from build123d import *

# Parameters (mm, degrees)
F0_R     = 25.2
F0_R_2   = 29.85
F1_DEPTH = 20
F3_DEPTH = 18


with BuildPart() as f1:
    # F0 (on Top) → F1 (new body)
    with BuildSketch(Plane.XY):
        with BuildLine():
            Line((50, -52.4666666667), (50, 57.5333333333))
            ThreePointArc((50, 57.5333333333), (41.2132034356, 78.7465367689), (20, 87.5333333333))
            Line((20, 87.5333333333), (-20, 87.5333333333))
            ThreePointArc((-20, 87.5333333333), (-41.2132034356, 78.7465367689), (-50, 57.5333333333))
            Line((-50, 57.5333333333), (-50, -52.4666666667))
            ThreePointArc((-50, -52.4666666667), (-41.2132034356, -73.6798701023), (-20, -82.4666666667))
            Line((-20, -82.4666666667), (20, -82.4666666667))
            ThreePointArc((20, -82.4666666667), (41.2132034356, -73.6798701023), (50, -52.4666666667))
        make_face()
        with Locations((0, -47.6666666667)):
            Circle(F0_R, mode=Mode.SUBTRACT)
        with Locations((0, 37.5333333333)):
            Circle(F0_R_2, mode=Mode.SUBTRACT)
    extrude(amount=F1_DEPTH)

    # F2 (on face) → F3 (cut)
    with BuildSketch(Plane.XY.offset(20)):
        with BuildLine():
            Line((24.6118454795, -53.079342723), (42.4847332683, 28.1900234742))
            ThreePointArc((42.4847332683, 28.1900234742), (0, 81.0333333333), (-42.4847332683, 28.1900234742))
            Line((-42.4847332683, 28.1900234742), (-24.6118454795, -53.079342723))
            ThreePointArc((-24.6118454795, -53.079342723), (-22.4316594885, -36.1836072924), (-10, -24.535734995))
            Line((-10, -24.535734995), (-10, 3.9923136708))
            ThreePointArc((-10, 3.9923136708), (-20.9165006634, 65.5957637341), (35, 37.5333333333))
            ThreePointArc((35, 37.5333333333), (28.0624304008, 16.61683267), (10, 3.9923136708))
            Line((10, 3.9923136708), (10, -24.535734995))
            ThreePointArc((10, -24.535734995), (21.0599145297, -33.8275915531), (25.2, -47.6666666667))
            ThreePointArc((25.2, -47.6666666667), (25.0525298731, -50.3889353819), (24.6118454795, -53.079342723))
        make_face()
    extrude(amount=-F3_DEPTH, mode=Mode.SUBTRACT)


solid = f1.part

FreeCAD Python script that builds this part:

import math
import FreeCAD as App
import Part
import Sketcher

V = App.Vector

doc = App.newDocument("Part")
body = doc.addObject("PartDesign::Body", "Body")

# Sketch on XY plane
sketch1 = body.newObject("Sketcher::SketchObject", "Sketch")
sketch1.AttachmentSupport = (doc.getObject("XY_Plane"), [""])
sketch1.MapMode = "FlatFace"
sketch1.addGeometry(Part.LineSegment(V(50, -52, 0), V(50, 58, 0)), False)
sketch1.addGeometry(Part.ArcOfCircle(Part.Circle(V(20, 58, 0), V(0, 0, 1), 30), math.radians(0), math.radians(90)), False)
sketch1.addGeometry(Part.LineSegment(V(20, 88, 0), V(-20, 88, 0)), False)
sketch1.addGeometry(Part.ArcOfCircle(Part.Circle(V(-20, 58, 0), V(0, 0, 1), 30), math.radians(90), math.radians(180)), False)
sketch1.addGeometry(Part.LineSegment(V(-50, 58, 0), V(-50, -52, 0)), False)
sketch1.addGeometry(Part.ArcOfCircle(Part.Circle(V(-20, -52, 0), V(0, 0, 1), 30), math.radians(180), math.radians(270)), False)
sketch1.addGeometry(Part.LineSegment(V(-20, -82, 0), V(20, -82, 0)), False)
sketch1.addGeometry(Part.ArcOfCircle(Part.Circle(V(20, -52, 0), V(0, 0, 1), 30), math.radians(-90), math.radians(0)), False)
sketch1.addGeometry(Part.Circle(V(0, -48, 0), V(0, 0, 1), 25), False)
sketch1.addGeometry(Part.Circle(V(0, 38, 0), V(0, 0, 1), 30), False)
sketch1.addConstraint(Sketcher.Constraint("Tangent", 0, 2, 1, 1))
sketch1.addConstraint(Sketcher.Constraint("Tangent", 1, 2, 2, 1))
sketch1.addConstraint(Sketcher.Constraint("Tangent", 2, 2, 3, 1))
sketch1.addConstraint(Sketcher.Constraint("Tangent", 3, 2, 4, 1))
sketch1.addConstraint(Sketcher.Constraint("Tangent", 4, 2, 5, 1))
sketch1.addConstraint(Sketcher.Constraint("Tangent", 5, 2, 6, 1))
sketch1.addConstraint(Sketcher.Constraint("Tangent", 6, 2, 7, 1))
sketch1.addConstraint(Sketcher.Constraint("Tangent", 7, 2, 0, 1))
sketch1.addConstraint(Sketcher.Constraint("Vertical", 0))
sketch1.addConstraint(Sketcher.Constraint("Horizontal", 2))
sketch1.addConstraint(Sketcher.Constraint("Vertical", 4))
sketch1.addConstraint(Sketcher.Constraint("Horizontal", 6))
sketch1.addConstraint(Sketcher.Constraint("Equal", 1, 3))
sketch1.addConstraint(Sketcher.Constraint("Equal", 3, 5))
sketch1.addConstraint(Sketcher.Constraint("Equal", 5, 7))
sketch1.addConstraint(Sketcher.Constraint("PointOnObject", 8, 3, -2))
sketch1.addConstraint(Sketcher.Constraint("PointOnObject", 9, 3, -2))
sketch1.addConstraint(Sketcher.Constraint("Radius", 1, 30.0))
sketch1.addConstraint(Sketcher.Constraint("Diameter", 8, 50.4))
sketch1.addConstraint(Sketcher.Constraint("Diameter", 9, 59.7))
sketch1.addConstraint(Sketcher.Constraint("DistanceX", 2, 2, 2, 1, 40.0))
sketch1.addConstraint(Sketcher.Constraint("DistanceY", 0, 1, 0, 2, 110.0))
sketch1.addConstraint(Sketcher.Constraint("DistanceX", -1, 1, 1, 3, 20.0))
sketch1.addConstraint(Sketcher.Constraint("DistanceY", 9, 3, 1, 3, 20.0))
sketch1.addConstraint(Sketcher.Constraint("DistanceY", 5, 3, 8, 3, 4.8))
sketch1.addConstraint(Sketcher.Constraint("DistanceY", -1, 1, 1, 3, 57.533333))
pad1 = body.newObject("PartDesign::Pad", "Pad")
pad1.Profile = sketch1
pad1.Length = 20

# Sketch on XY plane
sketch2 = body.newObject("Sketcher::SketchObject", "Sketch001")
sketch2.AttachmentSupport = (doc.getObject("XY_Plane"), [""])
sketch2.MapMode = "FlatFace"
sketch2.AttachmentOffset = App.Placement(V(0, 0, 20), App.Rotation())
sketch2.addGeometry(Part.LineSegment(V(25, -53, 0), V(42, 28, 0)), False)
sketch2.addGeometry(Part.ArcOfCircle(Part.Circle(V(0, 38, 0), V(0, 0, 1), 44), math.radians(-12), math.radians(192)), False)
sketch2.addGeometry(Part.LineSegment(V(-42, 28, 0), V(-25, -53, 0)), False)
sketch2.addGeometry(Part.ArcOfCircle(Part.Circle(V(0, -48, 0), V(0, 0, 1), 25), math.radians(113), math.radians(192)), False)
sketch2.addGeometry(Part.LineSegment(V(-10, -25, 0), V(-10, 4, 0)), False)
sketch2.addGeometry(Part.ArcOfCircle(Part.Circle(V(0, 38, 0), V(0, 0, 1), 35), math.radians(0), math.radians(253)), False)
sketch2.addGeometry(Part.ArcOfCircle(Part.Circle(V(0, 38, 0), V(0, 0, 1), 35), math.radians(-73), math.radians(0)), False)
sketch2.addGeometry(Part.LineSegment(V(10, 4, 0), V(10, -25, 0)), False)
sketch2.addGeometry(Part.ArcOfCircle(Part.Circle(V(0, -48, 0), V(0, 0, 1), 25), math.radians(0), math.radians(67)), False)
sketch2.addGeometry(Part.ArcOfCircle(Part.Circle(V(0, -48, 0), V(0, 0, 1), 25), math.radians(-12.4), math.radians(0)), False)
sketch2.addConstraint(Sketcher.Constraint("Tangent", 0, 2, 1, 1))
sketch2.addConstraint(Sketcher.Constraint("Tangent", 1, 2, 2, 1))
sketch2.addConstraint(Sketcher.Constraint("Tangent", 2, 2, 3, 2))
sketch2.addConstraint(Sketcher.Constraint("Coincident", 3, 1, 4, 1))
sketch2.addConstraint(Sketcher.Constraint("Coincident", 4, 2, 5, 2))
sketch2.addConstraint(Sketcher.Constraint("Tangent", 5, 1, 6, 2))
sketch2.addConstraint(Sketcher.Constraint("Coincident", 6, 1, 7, 1))
sketch2.addConstraint(Sketcher.Constraint("Coincident", 7, 2, 8, 2))
sketch2.addConstraint(Sketcher.Constraint("Tangent", 8, 1, 9, 2))
sketch2.addConstraint(Sketcher.Constraint("Tangent", 9, 1, 0, 1))
sketch2.addConstraint(Sketcher.Constraint("Vertical", 4))
sketch2.addConstraint(Sketcher.Constraint("Vertical", 7))
sketch2.addConstraint(Sketcher.Constraint("Coincident", 5, 3, 1, 3))
sketch2.addConstraint(Sketcher.Constraint("Coincident", 8, 3, 3, 3))
sketch2.addConstraint(Sketcher.Constraint("Equal", 5, 6))
sketch2.addConstraint(Sketcher.Constraint("Equal", 3, 8))
sketch2.addConstraint(Sketcher.Constraint("Equal", 8, 9))
sketch2.addConstraint(Sketcher.Constraint("Symmetric", 0, 2, 1, 2, -2))
sketch2.addConstraint(Sketcher.Constraint("Horizontal", 6, 3, 5, 1))
sketch2.addConstraint(Sketcher.Constraint("Horizontal", 4, 2, 6, 1))
sketch2.addConstraint(Sketcher.Constraint("Horizontal", 9, 3, 8, 1))
sketch2.addConstraint(Sketcher.Constraint("Radius", 5, 35.0))
sketch2.addConstraint(Sketcher.Constraint("Radius", 1, 43.5))
sketch2.addConstraint(Sketcher.Constraint("Radius", 3, 25.2))
sketch2.addConstraint(Sketcher.Constraint("DistanceX", 3, 1, -1, 1, 10.0))
sketch2.addConstraint(Sketcher.Constraint("DistanceY", 3, 3, 1, 3, 85.2))
sketch2.addConstraint(Sketcher.Constraint("DistanceY", -1, 1, 1, 3, 37.533333))
pocket1 = body.newObject("PartDesign::Pocket", "Pocket")
pocket1.Profile = sketch2
pocket1.Length = 18

doc.recompute()
